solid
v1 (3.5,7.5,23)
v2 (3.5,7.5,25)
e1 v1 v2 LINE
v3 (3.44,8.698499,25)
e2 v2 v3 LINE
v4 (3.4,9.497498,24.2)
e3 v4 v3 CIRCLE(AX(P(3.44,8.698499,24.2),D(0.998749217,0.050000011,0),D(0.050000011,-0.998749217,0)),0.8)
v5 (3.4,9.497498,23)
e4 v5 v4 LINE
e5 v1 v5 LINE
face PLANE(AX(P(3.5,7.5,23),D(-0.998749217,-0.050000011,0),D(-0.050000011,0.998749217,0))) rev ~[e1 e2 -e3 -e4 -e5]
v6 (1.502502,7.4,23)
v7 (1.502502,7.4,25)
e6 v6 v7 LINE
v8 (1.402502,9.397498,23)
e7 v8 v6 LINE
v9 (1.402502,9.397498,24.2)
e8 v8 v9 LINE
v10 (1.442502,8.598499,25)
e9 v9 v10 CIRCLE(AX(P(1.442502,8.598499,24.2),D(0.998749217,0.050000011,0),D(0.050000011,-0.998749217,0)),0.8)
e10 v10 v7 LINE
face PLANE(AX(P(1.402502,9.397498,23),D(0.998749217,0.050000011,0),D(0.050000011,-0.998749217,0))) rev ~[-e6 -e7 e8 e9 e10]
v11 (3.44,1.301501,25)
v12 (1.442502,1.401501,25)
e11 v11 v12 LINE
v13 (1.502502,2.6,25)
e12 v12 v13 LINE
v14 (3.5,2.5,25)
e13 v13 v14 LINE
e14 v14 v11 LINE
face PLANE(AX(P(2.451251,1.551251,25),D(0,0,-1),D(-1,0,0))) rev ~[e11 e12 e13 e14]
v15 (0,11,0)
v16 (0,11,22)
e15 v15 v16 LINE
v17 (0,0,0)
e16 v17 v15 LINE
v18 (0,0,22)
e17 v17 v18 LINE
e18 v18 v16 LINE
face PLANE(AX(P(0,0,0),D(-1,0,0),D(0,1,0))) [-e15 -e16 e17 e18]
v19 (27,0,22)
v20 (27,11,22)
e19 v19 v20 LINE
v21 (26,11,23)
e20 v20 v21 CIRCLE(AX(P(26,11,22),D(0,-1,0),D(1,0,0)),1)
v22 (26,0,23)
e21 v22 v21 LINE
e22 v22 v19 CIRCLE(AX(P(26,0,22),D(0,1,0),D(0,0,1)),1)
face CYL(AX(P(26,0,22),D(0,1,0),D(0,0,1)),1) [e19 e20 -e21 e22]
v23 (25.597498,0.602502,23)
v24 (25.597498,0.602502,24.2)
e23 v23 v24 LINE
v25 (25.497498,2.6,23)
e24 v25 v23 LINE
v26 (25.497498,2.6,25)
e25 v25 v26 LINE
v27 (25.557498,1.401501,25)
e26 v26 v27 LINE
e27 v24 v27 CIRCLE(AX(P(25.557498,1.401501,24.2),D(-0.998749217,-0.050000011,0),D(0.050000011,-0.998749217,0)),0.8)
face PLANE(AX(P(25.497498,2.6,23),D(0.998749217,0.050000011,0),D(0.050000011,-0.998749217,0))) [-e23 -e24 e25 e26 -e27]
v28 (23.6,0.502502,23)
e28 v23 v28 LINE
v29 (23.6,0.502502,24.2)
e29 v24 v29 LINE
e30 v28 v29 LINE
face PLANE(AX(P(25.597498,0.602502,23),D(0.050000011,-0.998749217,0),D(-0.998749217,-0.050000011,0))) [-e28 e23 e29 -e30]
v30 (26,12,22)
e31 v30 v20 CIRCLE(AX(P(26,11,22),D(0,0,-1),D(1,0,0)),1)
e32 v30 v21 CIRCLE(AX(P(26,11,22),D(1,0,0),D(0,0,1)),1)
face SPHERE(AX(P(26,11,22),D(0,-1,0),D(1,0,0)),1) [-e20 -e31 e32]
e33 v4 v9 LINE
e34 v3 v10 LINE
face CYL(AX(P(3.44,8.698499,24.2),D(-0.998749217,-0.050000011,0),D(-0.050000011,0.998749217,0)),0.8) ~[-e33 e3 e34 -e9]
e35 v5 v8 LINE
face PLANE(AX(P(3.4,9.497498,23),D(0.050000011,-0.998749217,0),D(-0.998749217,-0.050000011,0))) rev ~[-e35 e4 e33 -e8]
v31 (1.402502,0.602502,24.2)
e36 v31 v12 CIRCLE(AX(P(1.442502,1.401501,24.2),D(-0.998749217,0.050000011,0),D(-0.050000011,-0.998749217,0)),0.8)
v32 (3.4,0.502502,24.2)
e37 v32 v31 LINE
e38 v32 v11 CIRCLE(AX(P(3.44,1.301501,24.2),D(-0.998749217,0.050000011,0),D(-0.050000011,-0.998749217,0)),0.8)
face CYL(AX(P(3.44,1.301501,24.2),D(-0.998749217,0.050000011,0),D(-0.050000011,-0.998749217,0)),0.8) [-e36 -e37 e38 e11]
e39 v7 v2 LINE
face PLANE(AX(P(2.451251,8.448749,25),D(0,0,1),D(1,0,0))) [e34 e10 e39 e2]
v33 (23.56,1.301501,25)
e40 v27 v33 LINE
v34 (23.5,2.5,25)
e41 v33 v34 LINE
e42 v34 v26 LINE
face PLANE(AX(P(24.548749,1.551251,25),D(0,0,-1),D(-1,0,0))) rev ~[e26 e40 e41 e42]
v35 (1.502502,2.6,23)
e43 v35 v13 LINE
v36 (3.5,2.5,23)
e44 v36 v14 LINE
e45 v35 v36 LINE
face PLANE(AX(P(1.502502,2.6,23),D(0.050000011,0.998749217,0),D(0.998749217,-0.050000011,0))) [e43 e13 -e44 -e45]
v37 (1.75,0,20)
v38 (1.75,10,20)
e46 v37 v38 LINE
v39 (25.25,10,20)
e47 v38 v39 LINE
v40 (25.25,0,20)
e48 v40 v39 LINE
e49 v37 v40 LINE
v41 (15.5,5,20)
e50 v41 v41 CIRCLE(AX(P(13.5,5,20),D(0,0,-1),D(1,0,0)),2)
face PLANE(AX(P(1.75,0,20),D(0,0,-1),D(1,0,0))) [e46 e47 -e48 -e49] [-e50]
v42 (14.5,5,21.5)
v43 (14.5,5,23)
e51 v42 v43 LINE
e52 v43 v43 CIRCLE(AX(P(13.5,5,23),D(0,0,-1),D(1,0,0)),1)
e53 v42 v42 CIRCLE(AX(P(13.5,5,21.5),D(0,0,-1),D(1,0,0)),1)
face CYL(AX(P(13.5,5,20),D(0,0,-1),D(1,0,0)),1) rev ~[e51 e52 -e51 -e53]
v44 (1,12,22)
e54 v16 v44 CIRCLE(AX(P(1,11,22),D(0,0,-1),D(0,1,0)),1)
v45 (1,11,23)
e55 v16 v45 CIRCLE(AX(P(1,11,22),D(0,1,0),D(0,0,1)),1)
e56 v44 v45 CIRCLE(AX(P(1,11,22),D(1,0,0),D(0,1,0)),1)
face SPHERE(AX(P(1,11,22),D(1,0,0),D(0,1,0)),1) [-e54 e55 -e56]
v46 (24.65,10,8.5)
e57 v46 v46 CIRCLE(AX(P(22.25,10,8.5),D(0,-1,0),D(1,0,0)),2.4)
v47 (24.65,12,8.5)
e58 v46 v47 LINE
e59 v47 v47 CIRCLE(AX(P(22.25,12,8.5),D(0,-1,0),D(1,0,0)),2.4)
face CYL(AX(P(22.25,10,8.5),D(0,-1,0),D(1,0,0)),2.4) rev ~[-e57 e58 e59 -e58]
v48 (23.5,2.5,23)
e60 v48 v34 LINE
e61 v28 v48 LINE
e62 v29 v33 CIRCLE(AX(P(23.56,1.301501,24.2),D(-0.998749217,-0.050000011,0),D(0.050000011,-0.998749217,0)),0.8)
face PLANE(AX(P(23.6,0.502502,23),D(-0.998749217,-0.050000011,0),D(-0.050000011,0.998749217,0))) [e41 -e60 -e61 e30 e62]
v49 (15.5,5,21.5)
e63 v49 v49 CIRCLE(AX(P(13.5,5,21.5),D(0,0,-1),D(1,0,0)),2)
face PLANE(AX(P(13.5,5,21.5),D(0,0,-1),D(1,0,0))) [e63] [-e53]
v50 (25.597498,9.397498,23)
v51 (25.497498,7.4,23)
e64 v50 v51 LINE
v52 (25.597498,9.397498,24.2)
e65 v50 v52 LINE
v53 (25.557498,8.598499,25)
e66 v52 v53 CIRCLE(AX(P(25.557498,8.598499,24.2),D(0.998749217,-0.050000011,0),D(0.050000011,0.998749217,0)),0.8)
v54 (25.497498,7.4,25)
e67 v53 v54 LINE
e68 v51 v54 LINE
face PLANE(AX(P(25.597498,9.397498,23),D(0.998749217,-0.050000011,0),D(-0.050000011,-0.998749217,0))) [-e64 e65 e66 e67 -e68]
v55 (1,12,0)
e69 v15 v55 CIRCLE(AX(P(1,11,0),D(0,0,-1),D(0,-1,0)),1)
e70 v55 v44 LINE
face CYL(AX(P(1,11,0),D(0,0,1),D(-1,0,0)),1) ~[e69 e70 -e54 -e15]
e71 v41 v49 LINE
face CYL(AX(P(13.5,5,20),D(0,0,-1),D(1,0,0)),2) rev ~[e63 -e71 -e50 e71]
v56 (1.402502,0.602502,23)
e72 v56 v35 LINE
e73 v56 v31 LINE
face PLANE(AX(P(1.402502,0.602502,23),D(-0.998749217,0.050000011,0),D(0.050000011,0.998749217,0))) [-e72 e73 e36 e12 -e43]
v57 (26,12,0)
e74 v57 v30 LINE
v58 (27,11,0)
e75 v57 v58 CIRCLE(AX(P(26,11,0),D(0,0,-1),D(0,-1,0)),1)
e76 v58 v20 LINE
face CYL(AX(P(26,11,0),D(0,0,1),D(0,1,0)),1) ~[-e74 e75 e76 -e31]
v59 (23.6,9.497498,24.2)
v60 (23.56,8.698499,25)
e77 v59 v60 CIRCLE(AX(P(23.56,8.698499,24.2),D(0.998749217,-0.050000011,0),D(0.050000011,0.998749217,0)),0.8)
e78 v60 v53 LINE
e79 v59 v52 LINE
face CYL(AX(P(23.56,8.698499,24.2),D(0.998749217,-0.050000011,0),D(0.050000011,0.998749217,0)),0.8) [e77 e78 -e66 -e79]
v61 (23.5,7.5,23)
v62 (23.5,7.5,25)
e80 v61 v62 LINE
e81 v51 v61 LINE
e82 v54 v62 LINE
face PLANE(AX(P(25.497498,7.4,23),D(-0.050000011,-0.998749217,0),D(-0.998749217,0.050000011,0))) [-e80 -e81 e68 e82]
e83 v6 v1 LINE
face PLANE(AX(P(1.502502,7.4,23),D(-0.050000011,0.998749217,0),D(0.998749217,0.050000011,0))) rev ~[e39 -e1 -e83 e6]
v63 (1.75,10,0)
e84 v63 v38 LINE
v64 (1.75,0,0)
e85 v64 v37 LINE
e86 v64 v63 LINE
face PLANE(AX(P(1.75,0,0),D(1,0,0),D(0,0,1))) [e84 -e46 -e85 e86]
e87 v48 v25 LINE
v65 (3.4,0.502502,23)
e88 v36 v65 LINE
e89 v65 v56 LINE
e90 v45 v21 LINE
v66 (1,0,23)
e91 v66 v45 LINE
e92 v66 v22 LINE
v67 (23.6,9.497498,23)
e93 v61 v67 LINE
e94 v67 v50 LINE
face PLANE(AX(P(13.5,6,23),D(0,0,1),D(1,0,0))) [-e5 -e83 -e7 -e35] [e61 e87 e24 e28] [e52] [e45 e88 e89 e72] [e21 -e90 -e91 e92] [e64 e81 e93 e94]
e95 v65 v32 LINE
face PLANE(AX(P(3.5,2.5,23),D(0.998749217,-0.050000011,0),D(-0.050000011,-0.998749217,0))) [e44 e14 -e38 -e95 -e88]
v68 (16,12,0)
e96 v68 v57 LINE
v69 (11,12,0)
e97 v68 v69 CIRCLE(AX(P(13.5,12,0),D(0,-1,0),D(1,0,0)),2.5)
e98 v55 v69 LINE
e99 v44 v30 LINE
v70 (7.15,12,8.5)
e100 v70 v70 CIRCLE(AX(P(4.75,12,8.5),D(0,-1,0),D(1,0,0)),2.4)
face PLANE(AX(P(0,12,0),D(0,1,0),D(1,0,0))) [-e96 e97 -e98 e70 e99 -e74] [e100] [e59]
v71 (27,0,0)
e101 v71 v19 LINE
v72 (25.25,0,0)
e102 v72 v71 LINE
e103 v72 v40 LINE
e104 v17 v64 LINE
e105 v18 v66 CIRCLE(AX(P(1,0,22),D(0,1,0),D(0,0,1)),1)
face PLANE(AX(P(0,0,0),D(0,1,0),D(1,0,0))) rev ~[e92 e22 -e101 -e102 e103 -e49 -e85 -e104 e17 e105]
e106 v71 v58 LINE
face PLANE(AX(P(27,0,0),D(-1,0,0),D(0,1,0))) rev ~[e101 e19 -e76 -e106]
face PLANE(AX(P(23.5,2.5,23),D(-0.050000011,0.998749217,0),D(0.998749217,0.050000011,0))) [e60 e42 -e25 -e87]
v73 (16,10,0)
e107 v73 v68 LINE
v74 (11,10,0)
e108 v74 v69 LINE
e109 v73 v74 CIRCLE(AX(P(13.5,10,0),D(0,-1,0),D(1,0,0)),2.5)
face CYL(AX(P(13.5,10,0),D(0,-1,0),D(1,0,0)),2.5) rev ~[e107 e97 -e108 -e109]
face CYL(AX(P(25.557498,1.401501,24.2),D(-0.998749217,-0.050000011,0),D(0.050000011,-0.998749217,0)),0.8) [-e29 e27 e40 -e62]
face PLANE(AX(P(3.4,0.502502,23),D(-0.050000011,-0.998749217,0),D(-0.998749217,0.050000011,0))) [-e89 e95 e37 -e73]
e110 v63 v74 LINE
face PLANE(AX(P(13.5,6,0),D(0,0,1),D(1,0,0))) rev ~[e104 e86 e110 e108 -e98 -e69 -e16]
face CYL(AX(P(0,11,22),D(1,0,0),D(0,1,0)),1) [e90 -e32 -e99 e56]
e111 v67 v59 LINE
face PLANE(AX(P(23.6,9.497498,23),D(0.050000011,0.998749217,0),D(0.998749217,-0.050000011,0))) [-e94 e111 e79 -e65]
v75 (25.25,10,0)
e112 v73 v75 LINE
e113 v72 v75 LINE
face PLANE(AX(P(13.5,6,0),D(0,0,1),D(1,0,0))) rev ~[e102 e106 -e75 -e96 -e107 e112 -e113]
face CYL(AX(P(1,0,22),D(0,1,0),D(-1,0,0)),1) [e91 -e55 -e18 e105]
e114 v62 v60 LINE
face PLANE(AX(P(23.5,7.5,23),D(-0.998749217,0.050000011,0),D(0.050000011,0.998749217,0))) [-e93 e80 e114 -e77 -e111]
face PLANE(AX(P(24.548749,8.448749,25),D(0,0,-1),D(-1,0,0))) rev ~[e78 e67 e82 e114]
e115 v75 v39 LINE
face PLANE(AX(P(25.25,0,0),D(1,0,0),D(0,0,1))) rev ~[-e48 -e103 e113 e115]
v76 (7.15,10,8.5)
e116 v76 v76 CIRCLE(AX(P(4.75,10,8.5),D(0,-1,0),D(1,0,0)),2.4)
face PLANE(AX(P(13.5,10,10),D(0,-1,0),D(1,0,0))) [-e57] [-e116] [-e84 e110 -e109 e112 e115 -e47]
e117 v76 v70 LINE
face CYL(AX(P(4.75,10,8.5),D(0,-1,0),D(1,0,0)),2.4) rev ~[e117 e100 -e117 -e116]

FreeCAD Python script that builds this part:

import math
import FreeCAD as App
import Part
import Sketcher
from FreeCAD import Vector
Q = App.Units.Quantity


def edges_at(feature, points):
    """Names of the edges that pass closest to the given points."""
    edges = feature.Shape.Edges
    near = lambda p: min(range(len(edges)), key=lambda i: edges[i].distToShape(Part.Vertex(*p))[0])
    return sorted({f"Edge{near(p) + 1}" for p in points})


def add_polygon(sketch, points):
    """Adds a closed chain of lines whose ends are joined by coincident constraints."""
    first, n = sketch.GeometryCount, len(points)
    for a, b in zip(points, points[1:] + points[:1]):
        sketch.addGeometry(Part.LineSegment(App.Vector(*a, 0), App.Vector(*b, 0)), False)
    for i in range(n):
        sketch.addConstraint(Sketcher.Constraint("Coincident", first + i, 2, first + (i + 1) % n, 1))

doc = App.newDocument("Part")
body = doc.addObject("PartDesign::Body", "Body")

# Sketch on XY plane
sketch1 = body.newObject("Sketcher::SketchObject", "Sketch")
sketch1.AttachmentSupport = (doc.getObject("XY_Plane"), [""])
sketch1.MapMode = "FlatFace"
add_polygon(sketch1, [(0, 12), (0, 0), (27, 0), (27, 12)])  # lines 0-3
sketch1.addConstraint([
    Sketcher.Constraint("Vertical", 0),
    Sketcher.Constraint("Horizontal", 1),
    Sketcher.Constraint("Vertical", 2),
    Sketcher.Constraint("Horizontal", 3),
    Sketcher.Constraint("Coincident", 0, 2, -1, 1),
    Sketcher.Constraint("DistanceX", 1, 1, 1, 2, Q("27 mm")),
    Sketcher.Constraint("DistanceY", 0, 2, 0, 1, Q("12 mm")),
])
pad1 = body.newObject("PartDesign::Pad", "Pad")
pad1.Profile = sketch1
pad1.Length = 23

# Sketch on XZ plane
sketch2 = body.newObject("Sketcher::SketchObject", "Sketch001")
sketch2.AttachmentSupport = (doc.getObject("XZ_Plane"), [""])
sketch2.MapMode = "FlatFace"
add_polygon(sketch2, [(2, 20), (2, 0), (25, 0), (25, 20)])  # lines 0-3
sketch2.addConstraint([
    Sketcher.Constraint("Vertical", 0),
    Sketcher.Constraint("Horizontal", 1),
    Sketcher.Constraint("Vertical", 2),
    Sketcher.Constraint("Horizontal", 3),
    Sketcher.Constraint("PointOnObject", 0, 2, -1),
    Sketcher.Constraint("DistanceY", 0, 2, 0, 1, Q("20 mm")),
    Sketcher.Constraint("DistanceX", 1, 1, 1, 2, Q("23.5 mm")),
    Sketcher.Constraint("DistanceX", -1, 1, 0, 2, Q("1.75 mm")),
])
pocket1 = body.newObject("PartDesign::Pocket", "Pocket")
pocket1.Profile = sketch2
pocket1.Length = 10

# Sketch on XY plane
sketch3 = body.newObject("Sketcher::SketchObject", "Sketch002")
sketch3.AttachmentSupport = (doc.getObject("XY_Plane"), [""])
sketch3.MapMode = "FlatFace"
sketch3.AttachmentOffset = App.Placement(Vector(0, 0, 20), App.Rotation())
sketch3.addGeometry(Part.Circle(Vector(13.5, 5, 0), Vector(0, 0, 1), 1), False)
sketch3.addConstraint([
    Sketcher.Constraint("Diameter", 0, Q("2 mm")),
    Sketcher.Constraint("DistanceY", -1, 1, 0, 3, Q("5 mm")),
    Sketcher.Constraint("DistanceX", -1, 1, 0, 3, Q("13.5 mm")),
])
pocket2 = body.newObject("PartDesign::Pocket", "Pocket001")
pocket2.Profile = sketch3
pocket2.Type = "ThroughAll"
pocket2.Reversed = True

# Sketch on XY plane
sketch4 = body.newObject("Sketcher::SketchObject", "Sketch003")
sketch4.AttachmentSupport = (doc.getObject("XY_Plane"), [""])
sketch4.MapMode = "FlatFace"
sketch4.AttachmentOffset = App.Placement(Vector(0, 0, 20), App.Rotation())
sketch4.addGeometry(Part.Circle(Vector(13.5, 5, 0), Vector(0, 0, 1), 2), False)
sketch4.addConstraint([
    Sketcher.Constraint("Diameter", 0, Q("4 mm")),
    Sketcher.Constraint("DistanceY", -1, 1, 0, 3, Q("5 mm")),
    Sketcher.Constraint("DistanceX", -1, 1, 0, 3, Q("13.5 mm")),
])
pocket3 = body.newObject("PartDesign::Pocket", "Pocket002")
pocket3.Profile = sketch4
pocket3.Length = 1.5
pocket3.Reversed = True

# Sketch on XZ plane
sketch5 = body.newObject("Sketcher::SketchObject", "Sketch004")
sketch5.AttachmentSupport = (doc.getObject("XZ_Plane"), [""])
sketch5.MapMode = "FlatFace"
sketch5.AttachmentOffset = App.Placement(Vector(0, 0, -10), App.Rotation())
sketch5.addGeometry([
    Part.Circle(Vector(4.8, 8.5, 0), Vector(0, 0, 1), 2.4),
    Part.Circle(Vector(22.2, 8.5, 0), Vector(0, 0, 1), 2.4),
], False)
sketch5.addConstraint([
    Sketcher.Constraint("Equal", 0, 1),
    Sketcher.Constraint("Horizontal", 0, 3, 1, 3),
    Sketcher.Constraint("Diameter", 0, Q("4.8 mm")),
    Sketcher.Constraint("DistanceY", -1, 1, 0, 3, Q("8.5 mm")),
    Sketcher.Constraint("DistanceX", 0, 3, 1, 3, Q("17.5 mm")),
    Sketcher.Constraint("DistanceX", -1, 1, 0, 3, Q("4.75 mm")),
])
pocket4 = body.newObject("PartDesign::Pocket", "Pocket003")
pocket4.Profile = sketch5
pocket4.Type = "ThroughAll"

# Sketch on XZ plane
sketch6 = body.newObject("Sketcher::SketchObject", "Sketch005")
sketch6.AttachmentSupport = (doc.getObject("XZ_Plane"), [""])
sketch6.MapMode = "FlatFace"
sketch6.AttachmentOffset = App.Placement(Vector(0, 0, -10), App.Rotation())
sketch6.addGeometry([
    Part.ArcOfCircle(Part.Circle(Vector(13.5, 0, 0), Vector(0, 0, 1), 2.5), math.radians(0), math.radians(180)),
    Part.LineSegment(Vector(11, 0, 0), Vector(16, 0, 0)),
], False)
sketch6.addConstraint([
    Sketcher.Constraint("Coincident", 0, 1, 1, 2),
    Sketcher.Constraint("Coincident", 1, 1, 0, 2),
    Sketcher.Constraint("Horizontal", 1),
    Sketcher.Constraint("PointOnObject", 0, 3, -1),
    Sketcher.Constraint("PointOnObject", 0, 1, -1),
    Sketcher.Constraint("Radius", 0, Q("2.5 mm")),
    Sketcher.Constraint("DistanceX", -1, 1, 0, 1, Q("16 mm")),
])
pocket5 = body.newObject("PartDesign::Pocket", "Pocket004")
pocket5.Profile = sketch6
pocket5.Type = "ThroughAll"

# Sketch on XY plane
sketch7 = body.newObject("Sketcher::SketchObject", "Sketch006")
sketch7.AttachmentSupport = (doc.getObject("XY_Plane"), [""])
sketch7.MapMode = "FlatFace"
sketch7.AttachmentOffset = App.Placement(Vector(0, 0, 23), App.Rotation())
add_polygon(sketch7, [(3.4, 9.5), (1.4, 9.4), (1.5, 7.4), (3.5, 7.5)])  # lines 0-3
add_polygon(sketch7, [(3.5, 2.5), (1.5, 2.6), (1.4, 0.6), (3.4, 0.5)])  # lines 4-7
add_polygon(sketch7, [(25.5, 2.6), (23.5, 2.5), (23.6, 0.5), (25.6, 0.6)])  # lines 8-11
add_polygon(sketch7, [(25.6, 9.4), (23.6, 9.5), (23.5, 7.5), (25.5, 7.4)])  # lines 12-15
sketch7.addConstraint([
    Sketcher.Constraint("Perpendicular", 0, 1),
    Sketcher.Constraint("Perpendicular", 1, 2),
    Sketcher.Constraint("Perpendicular", 2, 3),
    Sketcher.Constraint("Perpendicular", 4, 5),
    Sketcher.Constraint("Perpendicular", 5, 6),
    Sketcher.Constraint("Perpendicular", 6, 7),
    Sketcher.Constraint("Perpendicular", 3, 8),
    Sketcher.Constraint("Perpendicular", 8, 9),
    Sketcher.Constraint("Perpendicular", 9, 10),
    Sketcher.Constraint("Perpendicular", 10, 11),
    Sketcher.Constraint("Perpendicular", 7, 12),
    Sketcher.Constraint("Perpendicular", 12, 13),
    Sketcher.Constraint("Perpendicular", 13, 14),
    Sketcher.Constraint("Perpendicular", 14, 15),
    Sketcher.Constraint("Horizontal", 7, 2, 8, 2),
    Sketcher.Constraint("Horizontal", 6, 2, 9, 2),
    Sketcher.Constraint("Horizontal", 5, 2, 10, 2),
    Sketcher.Constraint("Horizontal", 3, 2, 12, 2),
    Sketcher.Constraint("Horizontal", 2, 2, 13, 2),
    Sketcher.Constraint("Horizontal", 1, 2, 14, 2),
    Sketcher.Constraint("Vertical", 1, 2, 4, 2),
    Sketcher.Constraint("Vertical", 0, 2, 5, 2),
    Sketcher.Constraint("Vertical", 3, 2, 6, 2),
    Sketcher.Constraint("Vertical", 9, 2, 12, 2),
    Sketcher.Constraint("Vertical", 8, 2, 13, 2),
    Sketcher.Constraint("Equal", 0, 1),
    Sketcher.Constraint("Distance", 0, Q("2 mm")),
    Sketcher.Constraint("DistanceY", 7, 2, 2, 2, Q("5 mm")),
    Sketcher.Constraint("DistanceX", 7, 2, 8, 2, Q("20 mm")),
    Sketcher.Constraint("DistanceY", -1, 1, 1, 2, Q("7.4 mm")),
    Sketcher.Constraint("DistanceX", -1, 1, 2, 2, Q("3.5 mm")),
    Sketcher.Constraint("DistanceY", -1, 1, 2, 2, Q("7.5 mm")),
])
pad2 = body.newObject("PartDesign::Pad", "Pad001")
pad2.Profile = sketch7
pad2.Length = 2
doc.recompute()

fillet = body.newObject("PartDesign::Fillet", "Fillet")
fillet.Base = (pad2, edges_at(pad2, [
    (27, 6, 23),
    (27, 12, 11.5),
    (13.5, 12, 23),
    (0, 12, 11.5),
    (0, 6, 23),
]))
fillet.Radius = 1
doc.recompute()

fillet2 = body.newObject("PartDesign::Fillet", "Fillet001")
fillet2.Base = (fillet, edges_at(fillet, [
    (2.401, 9.447, 25),
    (2.401, 0.553, 25),
    (24.599, 9.447, 25),
    (24.599, 0.553, 25),
]))
fillet2.Radius = 0.8

doc.recompute()
